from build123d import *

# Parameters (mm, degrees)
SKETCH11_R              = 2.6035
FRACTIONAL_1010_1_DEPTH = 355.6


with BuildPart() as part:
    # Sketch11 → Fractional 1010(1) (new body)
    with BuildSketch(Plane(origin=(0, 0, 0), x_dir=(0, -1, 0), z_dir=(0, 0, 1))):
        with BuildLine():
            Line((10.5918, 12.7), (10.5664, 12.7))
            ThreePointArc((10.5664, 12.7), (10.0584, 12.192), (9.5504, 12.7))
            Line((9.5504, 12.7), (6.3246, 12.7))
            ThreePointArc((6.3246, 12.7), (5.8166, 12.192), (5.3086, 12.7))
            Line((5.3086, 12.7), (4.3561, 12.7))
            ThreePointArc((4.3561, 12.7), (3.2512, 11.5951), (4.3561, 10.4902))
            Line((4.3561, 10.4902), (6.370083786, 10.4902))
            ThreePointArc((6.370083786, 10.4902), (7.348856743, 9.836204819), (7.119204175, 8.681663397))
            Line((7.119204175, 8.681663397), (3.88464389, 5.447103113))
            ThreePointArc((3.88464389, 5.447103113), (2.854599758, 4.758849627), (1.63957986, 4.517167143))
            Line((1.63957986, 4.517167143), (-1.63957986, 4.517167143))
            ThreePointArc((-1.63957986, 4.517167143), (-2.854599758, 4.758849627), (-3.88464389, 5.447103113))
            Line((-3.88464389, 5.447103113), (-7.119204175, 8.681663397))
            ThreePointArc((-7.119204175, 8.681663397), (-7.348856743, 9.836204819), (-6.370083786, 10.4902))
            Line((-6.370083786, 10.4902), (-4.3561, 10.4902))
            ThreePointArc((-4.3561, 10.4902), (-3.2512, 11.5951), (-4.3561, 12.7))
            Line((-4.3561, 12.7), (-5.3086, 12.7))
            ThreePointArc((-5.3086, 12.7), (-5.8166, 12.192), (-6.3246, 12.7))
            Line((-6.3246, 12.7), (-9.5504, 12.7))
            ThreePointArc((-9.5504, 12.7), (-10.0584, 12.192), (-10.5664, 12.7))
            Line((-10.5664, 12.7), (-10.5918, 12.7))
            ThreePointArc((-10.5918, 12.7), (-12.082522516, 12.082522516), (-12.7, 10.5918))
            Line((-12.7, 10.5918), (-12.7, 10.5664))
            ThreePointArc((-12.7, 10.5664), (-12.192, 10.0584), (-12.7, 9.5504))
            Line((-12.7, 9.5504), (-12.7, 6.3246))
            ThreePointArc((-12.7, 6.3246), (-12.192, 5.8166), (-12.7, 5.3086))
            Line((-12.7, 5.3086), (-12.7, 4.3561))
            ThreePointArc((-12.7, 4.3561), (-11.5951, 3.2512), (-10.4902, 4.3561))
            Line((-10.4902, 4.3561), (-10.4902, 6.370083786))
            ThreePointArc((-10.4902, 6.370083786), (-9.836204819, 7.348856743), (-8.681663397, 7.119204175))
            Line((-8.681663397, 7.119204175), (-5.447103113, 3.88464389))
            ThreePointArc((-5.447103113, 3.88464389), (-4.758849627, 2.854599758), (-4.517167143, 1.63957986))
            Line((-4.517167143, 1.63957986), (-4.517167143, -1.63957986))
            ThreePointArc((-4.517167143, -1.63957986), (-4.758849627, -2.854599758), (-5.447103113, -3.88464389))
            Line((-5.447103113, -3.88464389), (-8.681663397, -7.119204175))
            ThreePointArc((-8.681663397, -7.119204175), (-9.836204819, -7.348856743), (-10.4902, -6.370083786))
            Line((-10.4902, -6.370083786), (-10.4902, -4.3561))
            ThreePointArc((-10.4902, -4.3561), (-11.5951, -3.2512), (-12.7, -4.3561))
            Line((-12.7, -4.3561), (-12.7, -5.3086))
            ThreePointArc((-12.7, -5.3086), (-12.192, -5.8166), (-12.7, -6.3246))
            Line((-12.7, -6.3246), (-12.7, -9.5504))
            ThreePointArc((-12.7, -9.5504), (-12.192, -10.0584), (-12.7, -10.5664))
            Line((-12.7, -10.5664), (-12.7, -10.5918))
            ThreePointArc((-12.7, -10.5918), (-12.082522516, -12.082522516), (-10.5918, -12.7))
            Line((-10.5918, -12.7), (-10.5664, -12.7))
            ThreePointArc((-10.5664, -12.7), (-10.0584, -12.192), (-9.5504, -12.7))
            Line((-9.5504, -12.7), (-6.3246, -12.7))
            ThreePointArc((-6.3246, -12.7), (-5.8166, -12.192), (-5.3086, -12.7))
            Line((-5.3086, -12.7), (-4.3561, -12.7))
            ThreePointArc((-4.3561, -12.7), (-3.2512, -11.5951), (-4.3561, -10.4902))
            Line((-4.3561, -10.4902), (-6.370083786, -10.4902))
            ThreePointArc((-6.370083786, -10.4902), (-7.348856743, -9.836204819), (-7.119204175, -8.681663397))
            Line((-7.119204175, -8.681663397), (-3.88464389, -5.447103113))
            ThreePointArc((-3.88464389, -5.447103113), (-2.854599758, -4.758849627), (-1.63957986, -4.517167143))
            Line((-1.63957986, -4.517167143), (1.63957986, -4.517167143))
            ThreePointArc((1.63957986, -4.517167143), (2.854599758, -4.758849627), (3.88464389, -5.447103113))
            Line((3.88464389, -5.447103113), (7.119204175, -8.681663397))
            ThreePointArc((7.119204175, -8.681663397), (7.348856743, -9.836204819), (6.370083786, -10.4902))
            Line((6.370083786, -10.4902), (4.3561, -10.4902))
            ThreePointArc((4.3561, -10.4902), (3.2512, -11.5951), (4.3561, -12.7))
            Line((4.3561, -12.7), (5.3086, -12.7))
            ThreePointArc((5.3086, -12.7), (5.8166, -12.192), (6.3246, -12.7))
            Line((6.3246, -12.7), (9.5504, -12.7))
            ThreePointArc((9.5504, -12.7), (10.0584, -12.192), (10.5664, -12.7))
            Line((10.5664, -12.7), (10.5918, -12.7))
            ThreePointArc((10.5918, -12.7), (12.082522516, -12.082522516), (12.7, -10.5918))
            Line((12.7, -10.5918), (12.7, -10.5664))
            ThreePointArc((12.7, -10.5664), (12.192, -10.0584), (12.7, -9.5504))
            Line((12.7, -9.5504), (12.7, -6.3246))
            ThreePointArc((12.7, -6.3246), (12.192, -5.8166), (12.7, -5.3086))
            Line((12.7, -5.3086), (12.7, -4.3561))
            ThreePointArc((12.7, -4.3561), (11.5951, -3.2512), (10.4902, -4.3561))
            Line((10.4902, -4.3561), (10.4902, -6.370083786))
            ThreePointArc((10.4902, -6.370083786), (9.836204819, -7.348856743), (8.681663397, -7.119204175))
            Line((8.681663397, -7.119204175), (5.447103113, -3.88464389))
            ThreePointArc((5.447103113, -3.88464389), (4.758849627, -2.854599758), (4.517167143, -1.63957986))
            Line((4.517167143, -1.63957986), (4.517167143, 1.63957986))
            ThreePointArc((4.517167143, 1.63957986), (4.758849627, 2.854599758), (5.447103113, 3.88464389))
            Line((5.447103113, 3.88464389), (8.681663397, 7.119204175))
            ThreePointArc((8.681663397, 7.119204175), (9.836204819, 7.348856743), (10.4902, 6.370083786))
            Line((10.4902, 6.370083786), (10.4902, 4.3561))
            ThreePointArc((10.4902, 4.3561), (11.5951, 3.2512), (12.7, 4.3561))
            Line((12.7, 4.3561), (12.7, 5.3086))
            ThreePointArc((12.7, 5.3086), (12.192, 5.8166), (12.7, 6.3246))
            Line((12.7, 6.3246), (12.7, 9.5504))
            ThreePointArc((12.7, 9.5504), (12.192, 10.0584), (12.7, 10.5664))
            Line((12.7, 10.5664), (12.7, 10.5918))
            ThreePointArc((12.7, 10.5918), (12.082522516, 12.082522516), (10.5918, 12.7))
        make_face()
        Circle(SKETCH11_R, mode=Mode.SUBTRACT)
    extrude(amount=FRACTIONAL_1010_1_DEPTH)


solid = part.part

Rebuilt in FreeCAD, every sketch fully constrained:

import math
import FreeCAD as App
import Part
import Sketcher
Q = App.Units.Quantity

doc = App.newDocument("Part")
body = doc.addObject("PartDesign::Body", "Body")

sketch1 = body.newObject("Sketcher::SketchObject", "Sketch")
sketch1.AttachmentSupport = (doc.getObject("XY_Plane"), [""])
sketch1.MapMode = "FlatFace"
sketch1.addGeometry(Part.LineSegment(App.Vector(12.7, -10.592, 0), App.Vector(12.7, -10.566, 0)), False)
sketch1.addGeometry(Part.ArcOfCircle(Part.Circle(App.Vector(12.7, -10.058, 0), App.Vector(0, 0, 1), 0.508), math.radians(90), math.radians(270)), False)
sketch1.addGeometry(Part.LineSegment(App.Vector(12.7, -9.55, 0), App.Vector(12.7, -6.325, 0)), False)
sketch1.addGeometry(Part.ArcOfCircle(Part.Circle(App.Vector(12.7, -5.817, 0), App.Vector(0, 0, 1), 0.508), math.radians(90), math.radians(270)), False)
sketch1.addGeometry(Part.LineSegment(App.Vector(12.7, -5.309, 0), App.Vector(12.7, -4.356, 0)), False)
sketch1.addGeometry(Part.ArcOfCircle(Part.Circle(App.Vector(11.595, -4.356, 0), App.Vector(0, 0, 1), 1.105), math.radians(0), math.radians(180)), False)
sketch1.addGeometry(Part.LineSegment(App.Vector(10.49, -4.356, 0), App.Vector(10.49, -6.37, 0)), False)
sketch1.addGeometry(Part.ArcOfCircle(Part.Circle(App.Vector(9.431, -6.37, 0), App.Vector(0, 0, 1), 1.059), math.radians(-135), math.radians(0)), False)
sketch1.addGeometry(Part.LineSegment(App.Vector(8.682, -7.119, 0), App.Vector(5.447, -3.885, 0)), False)
sketch1.addGeometry(Part.ArcOfCircle(Part.Circle(App.Vector(7.692, -1.64, 0), App.Vector(0, 0, 1), 3.175), math.radians(180), math.radians(225)), False)
sketch1.addGeometry(Part.LineSegment(App.Vector(4.517, -1.64, 0), App.Vector(4.517, 1.64, 0)), False)
sketch1.addGeometry(Part.ArcOfCircle(Part.Circle(App.Vector(7.692, 1.64, 0), App.Vector(0, 0, 1), 3.175), math.radians(135), math.radians(180)), False)
sketch1.addGeometry(Part.LineSegment(App.Vector(5.447, 3.885, 0), App.Vector(8.682, 7.119, 0)), False)
sketch1.addGeometry(Part.ArcOfCircle(Part.Circle(App.Vector(9.431, 6.37, 0), App.Vector(0, 0, 1), 1.059), math.radians(0), math.radians(135)), False)
sketch1.addGeometry(Part.LineSegment(App.Vector(10.49, 6.37, 0), App.Vector(10.49, 4.356, 0)), False)
sketch1.addGeometry(Part.ArcOfCircle(Part.Circle(App.Vector(11.595, 4.356, 0), App.Vector(0, 0, 1), 1.105), math.radians(180), math.radians(360)), False)
sketch1.addGeometry(Part.LineSegment(App.Vector(12.7, 4.356, 0), App.Vector(12.7, 5.309, 0)), False)
sketch1.addGeometry(Part.ArcOfCircle(Part.Circle(App.Vector(12.7, 5.817, 0), App.Vector(0, 0, 1), 0.508), math.radians(90), math.radians(270)), False)
sketch1.addGeometry(Part.LineSegment(App.Vector(12.7, 6.325, 0), App.Vector(12.7, 9.55, 0)), False)
sketch1.addGeometry(Part.ArcOfCircle(Part.Circle(App.Vector(12.7, 10.058, 0), App.Vector(0, 0, 1), 0.508), math.radians(90), math.radians(270)), False)
sketch1.addGeometry(Part.LineSegment(App.Vector(12.7, 10.566, 0), App.Vector(12.7, 10.592, 0)), False)
sketch1.addGeometry(Part.ArcOfCircle(Part.Circle(App.Vector(10.592, 10.592, 0), App.Vector(0, 0, 1), 2.108), math.radians(0), math.radians(90)), False)
sketch1.addGeometry(Part.LineSegment(App.Vector(10.592, 12.7, 0), App.Vector(10.566, 12.7, 0)), False)
sketch1.addGeometry(Part.ArcOfCircle(Part.Circle(App.Vector(10.058, 12.7, 0), App.Vector(0, 0, 1), 0.508), math.radians(180), math.radians(360)), False)
sketch1.addGeometry(Part.LineSegment(App.Vector(9.55, 12.7, 0), App.Vector(6.325, 12.7, 0)), False)
sketch1.addGeometry(Part.ArcOfCircle(Part.Circle(App.Vector(5.817, 12.7, 0), App.Vector(0, 0, 1), 0.508), math.radians(180), math.radians(360)), False)
sketch1.addGeometry(Part.LineSegment(App.Vector(5.309, 12.7, 0), App.Vector(4.356, 12.7, 0)), False)
sketch1.addGeometry(Part.ArcOfCircle(Part.Circle(App.Vector(4.356, 11.595, 0), App.Vector(0, 0, 1), 1.105), math.radians(90), math.radians(270)), False)
sketch1.addGeometry(Part.LineSegment(App.Vector(4.356, 10.49, 0), App.Vector(6.37, 10.49, 0)), False)
sketch1.addGeometry(Part.ArcOfCircle(Part.Circle(App.Vector(6.37, 9.431, 0), App.Vector(0, 0, 1), 1.059), math.radians(-45), math.radians(90)), False)
sketch1.addGeometry(Part.LineSegment(App.Vector(7.119, 8.682, 0), App.Vector(3.885, 5.447, 0)), False)
sketch1.addGeometry(Part.ArcOfCircle(Part.Circle(App.Vector(1.64, 7.692, 0), App.Vector(0, 0, 1), 3.175), math.radians(-90), math.radians(-45)), False)
sketch1.addGeometry(Part.LineSegment(App.Vector(1.64, 4.517, 0), App.Vector(-1.64, 4.517, 0)), False)
sketch1.addGeometry(Part.ArcOfCircle(Part.Circle(App.Vector(-1.64, 7.692, 0), App.Vector(0, 0, 1), 3.175), math.radians(-135), math.radians(-90)), False)
sketch1.addGeometry(Part.LineSegment(App.Vector(-3.885, 5.447, 0), App.Vector(-7.119, 8.682, 0)), False)
sketch1.addGeometry(Part.ArcOfCircle(Part.Circle(App.Vector(-6.37, 9.431, 0), App.Vector(0, 0, 1), 1.059), math.radians(90), math.radians(225)), False)
sketch1.addGeometry(Part.LineSegment(App.Vector(-6.37, 10.49, 0), App.Vector(-4.356, 10.49, 0)), False)
sketch1.addGeometry(Part.ArcOfCircle(Part.Circle(App.Vector(-4.356, 11.595, 0), App.Vector(0, 0, 1), 1.105), math.radians(-90), math.radians(90)), False)
sketch1.addGeometry(Part.LineSegment(App.Vector(-4.356, 12.7, 0), App.Vector(-5.309, 12.7, 0)), False)
sketch1.addGeometry(Part.ArcOfCircle(Part.Circle(App.Vector(-5.817, 12.7, 0), App.Vector(0, 0, 1), 0.508), math.radians(180), math.radians(360)), False)
sketch1.addGeometry(Part.LineSegment(App.Vector(-6.325, 12.7, 0), App.Vector(-9.55, 12.7, 0)), False)
sketch1.addGeometry(Part.ArcOfCircle(Part.Circle(App.Vector(-10.058, 12.7, 0), App.Vector(0, 0, 1), 0.508), math.radians(180), math.radians(360)), False)
sketch1.addGeometry(Part.LineSegment(App.Vector(-10.566, 12.7, 0), App.Vector(-10.592, 12.7, 0)), False)
sketch1.addGeometry(Part.ArcOfCircle(Part.Circle(App.Vector(-10.592, 10.592, 0), App.Vector(0, 0, 1), 2.108), math.radians(90), math.radians(180)), False)
sketch1.addGeometry(Part.LineSegment(App.Vector(-12.7, 10.592, 0), App.Vector(-12.7, 10.566, 0)), False)
sketch1.addGeometry(Part.ArcOfCircle(Part.Circle(App.Vector(-12.7, 10.058, 0), App.Vector(0, 0, 1), 0.508), math.radians(-90), math.radians(90)), False)
sketch1.addGeometry(Part.LineSegment(App.Vector(-12.7, 9.55, 0), App.Vector(-12.7, 6.325, 0)), False)
sketch1.addGeometry(Part.ArcOfCircle(Part.Circle(App.Vector(-12.7, 5.817, 0), App.Vector(0, 0, 1), 0.508), math.radians(-90), math.radians(90)), False)
sketch1.addGeometry(Part.LineSegment(App.Vector(-12.7, 5.309, 0), App.Vector(-12.7, 4.356, 0)), False)
sketch1.addGeometry(Part.ArcOfCircle(Part.Circle(App.Vector(-11.595, 4.356, 0), App.Vector(0, 0, 1), 1.105), math.radians(180), math.radians(360)), False)
sketch1.addGeometry(Part.LineSegment(App.Vector(-10.49, 4.356, 0), App.Vector(-10.49, 6.37, 0)), False)
sketch1.addGeometry(Part.ArcOfCircle(Part.Circle(App.Vector(-9.431, 6.37, 0), App.Vector(0, 0, 1), 1.059), math.radians(45), math.radians(180)), False)
sketch1.addGeometry(Part.LineSegment(App.Vector(-8.682, 7.119, 0), App.Vector(-5.447, 3.885, 0)), False)
sketch1.addGeometry(Part.ArcOfCircle(Part.Circle(App.Vector(-7.692, 1.64, 0), App.Vector(0, 0, 1), 3.175), math.radians(0), math.radians(45)), False)
sketch1.addGeometry(Part.LineSegment(App.Vector(-4.517, 1.64, 0), App.Vector(-4.517, -1.64, 0)), False)
sketch1.addGeometry(Part.ArcOfCircle(Part.Circle(App.Vector(-7.692, -1.64, 0), App.Vector(0, 0, 1), 3.175), math.radians(-45), math.radians(0)), False)
sketch1.addGeometry(Part.LineSegment(App.Vector(-5.447, -3.885, 0), App.Vector(-8.682, -7.119, 0)), False)
sketch1.addGeometry(Part.ArcOfCircle(Part.Circle(App.Vector(-9.431, -6.37, 0), App.Vector(0, 0, 1), 1.059), math.radians(180), math.radians(315)), False)
sketch1.addGeometry(Part.LineSegment(App.Vector(-10.49, -6.37, 0), App.Vector(-10.49, -4.356, 0)), False)
sketch1.addGeometry(Part.ArcOfCircle(Part.Circle(App.Vector(-11.595, -4.356, 0), App.Vector(0, 0, 1), 1.105), math.radians(0), math.radians(180)), False)
sketch1.addGeometry(Part.LineSegment(App.Vector(-12.7, -4.356, 0), App.Vector(-12.7, -5.309, 0)), False)
sketch1.addGeometry(Part.ArcOfCircle(Part.Circle(App.Vector(-12.7, -5.817, 0), App.Vector(0, 0, 1), 0.508), math.radians(-90), math.radians(90)), False)
sketch1.addGeometry(Part.LineSegment(App.Vector(-12.7, -6.325, 0), App.Vector(-12.7, -9.55, 0)), False)
sketch1.addGeometry(Part.ArcOfCircle(Part.Circle(App.Vector(-12.7, -10.058, 0), App.Vector(0, 0, 1), 0.508), math.radians(-90), math.radians(90)), False)
sketch1.addGeometry(Part.LineSegment(App.Vector(-12.7, -10.566, 0), App.Vector(-12.7, -10.592, 0)), False)
sketch1.addGeometry(Part.ArcOfCircle(Part.Circle(App.Vector(-10.592, -10.592, 0), App.Vector(0, 0, 1), 2.108), math.radians(180), math.radians(270)), False)
sketch1.addGeometry(Part.LineSegment(App.Vector(-10.592, -12.7, 0), App.Vector(-10.566, -12.7, 0)), False)
sketch1.addGeometry(Part.ArcOfCircle(Part.Circle(App.Vector(-10.058, -12.7, 0), App.Vector(0, 0, 1), 0.508), math.radians(0), math.radians(180)), False)
sketch1.addGeometry(Part.LineSegment(App.Vector(-9.55, -12.7, 0), App.Vector(-6.325, -12.7, 0)), False)
sketch1.addGeometry(Part.ArcOfCircle(Part.Circle(App.Vector(-5.817, -12.7, 0), App.Vector(0, 0, 1), 0.508), math.radians(0), math.radians(180)), False)
sketch1.addGeometry(Part.LineSegment(App.Vector(-5.309, -12.7, 0), App.Vector(-4.356, -12.7, 0)), False)
sketch1.addGeometry(Part.ArcOfCircle(Part.Circle(App.Vector(-4.356, -11.595, 0), App.Vector(0, 0, 1), 1.105), math.radians(-90), math.radians(90)), False)
sketch1.addGeometry(Part.LineSegment(App.Vector(-4.356, -10.49, 0), App.Vector(-6.37, -10.49, 0)), False)
sketch1.addGeometry(Part.ArcOfCircle(Part.Circle(App.Vector(-6.37, -9.431, 0), App.Vector(0, 0, 1), 1.059), math.radians(135), math.radians(270)), False)
sketch1.addGeometry(Part.LineSegment(App.Vector(-7.119, -8.682, 0), App.Vector(-3.885, -5.447, 0)), False)
sketch1.addGeometry(Part.ArcOfCircle(Part.Circle(App.Vector(-1.64, -7.692, 0), App.Vector(0, 0, 1), 3.175), math.radians(90), math.radians(135)), False)
sketch1.addGeometry(Part.LineSegment(App.Vector(-1.64, -4.517, 0), App.Vector(1.64, -4.517, 0)), False)
sketch1.addGeometry(Part.ArcOfCircle(Part.Circle(App.Vector(1.64, -7.692, 0), App.Vector(0, 0, 1), 3.175), math.radians(45), math.radians(90)), False)
sketch1.addGeometry(Part.LineSegment(App.Vector(3.885, -5.447, 0), App.Vector(7.119, -8.682, 0)), False)
sketch1.addGeometry(Part.ArcOfCircle(Part.Circle(App.Vector(6.37, -9.431, 0), App.Vector(0, 0, 1), 1.059), math.radians(-90), math.radians(45)), False)
sketch1.addGeometry(Part.LineSegment(App.Vector(6.37, -10.49, 0), App.Vector(4.356, -10.49, 0)), False)
sketch1.addGeometry(Part.ArcOfCircle(Part.Circle(App.Vector(4.356, -11.595, 0), App.Vector(0, 0, 1), 1.105), math.radians(90), math.radians(270)), False)
sketch1.addGeometry(Part.LineSegment(App.Vector(4.356, -12.7, 0), App.Vector(5.309, -12.7, 0)), False)
sketch1.addGeometry(Part.ArcOfCircle(Part.Circle(App.Vector(5.817, -12.7, 0), App.Vector(0, 0, 1), 0.508), math.radians(0), math.radians(180)), False)
sketch1.addGeometry(Part.LineSegment(App.Vector(6.325, -12.7, 0), App.Vector(9.55, -12.7, 0)), False)
sketch1.addGeometry(Part.ArcOfCircle(Part.Circle(App.Vector(10.058, -12.7, 0), App.Vector(0, 0, 1), 0.508), math.radians(0), math.radians(180)), False)
sketch1.addGeometry(Part.LineSegment(App.Vector(10.566, -12.7, 0), App.Vector(10.592, -12.7, 0)), False)
sketch1.addGeometry(Part.ArcOfCircle(Part.Circle(App.Vector(10.592, -10.592, 0), App.Vector(0, 0, 1), 2.108), math.radians(-90), math.radians(0)), False)
sketch1.addGeometry(Part.Circle(App.Vector(0, 0, 0), App.Vector(0, 0, 1), 2.603), False)
sketch1.addConstraint(Sketcher.Constraint("Coincident", 0, 2, 1, 2))
sketch1.addConstraint(Sketcher.Constraint("Coincident", 1, 1, 2, 1))
sketch1.addConstraint(Sketcher.Constraint("Coincident", 2, 2, 3, 2))
sketch1.addConstraint(Sketcher.Constraint("Coincident", 3, 1, 4, 1))
sketch1.addConstraint(Sketcher.Constraint("Tangent", 4, 2, 5, 1))
sketch1.addConstraint(Sketcher.Constraint("Tangent", 5, 2, 6, 1))
sketch1.addConstraint(Sketcher.Constraint("Tangent", 6, 2, 7, 2))
sketch1.addConstraint(Sketcher.Constraint("Tangent", 7, 1, 8, 1))
sketch1.addConstraint(Sketcher.Constraint("Tangent", 8, 2, 9, 2))
sketch1.addConstraint(Sketcher.Constraint("Tangent", 9, 1, 10, 1))
sketch1.addConstraint(Sketcher.Constraint("Tangent", 10, 2, 11, 2))
sketch1.addConstraint(Sketcher.Constraint("Tangent", 11, 1, 12, 1))
sketch1.addConstraint(Sketcher.Constraint("Tangent", 12, 2, 13, 2))
sketch1.addConstraint(Sketcher.Constraint("Tangent", 13, 1, 14, 1))
sketch1.addConstraint(Sketcher.Constraint("Tangent", 14, 2, 15, 1))
sketch1.addConstraint(Sketcher.Constraint("Tangent", 15, 2, 16, 1))
sketch1.addConstraint(Sketcher.Constraint("Coincident", 16, 2, 17, 2))
sketch1.addConstraint(Sketcher.Constraint("Coincident", 17, 1, 18, 1))
sketch1.addConstraint(Sketcher.Constraint("Coincident", 18, 2, 19, 2))
sketch1.addConstraint(Sketcher.Constraint("Coincident", 19, 1, 20, 1))
sketch1.addConstraint(Sketcher.Constraint("Tangent", 20, 2, 21, 1))
sketch1.addConstraint(Sketcher.Constraint("Tangent", 21, 2, 22, 1))
sketch1.addConstraint(Sketcher.Constraint("Coincident", 22, 2, 23, 2))
sketch1.addConstraint(Sketcher.Constraint("Coincident", 23, 1, 24, 1))
sketch1.addConstraint(Sketcher.Constraint("Coincident", 24, 2, 25, 2))
sketch1.addConstraint(Sketcher.Constraint("Coincident", 25, 1, 26, 1))
sketch1.addConstraint(Sketcher.Constraint("Tangent", 26, 2, 27, 1))
sketch1.addConstraint(Sketcher.Constraint("Tangent", 27, 2, 28, 1))
sketch1.addConstraint(Sketcher.Constraint("Tangent", 28, 2, 29, 2))
sketch1.addConstraint(Sketcher.Constraint("Tangent", 29, 1, 30, 1))
sketch1.addConstraint(Sketcher.Constraint("Tangent", 30, 2, 31, 2))
sketch1.addConstraint(Sketcher.Constraint("Tangent", 31, 1, 32, 1))
sketch1.addConstraint(Sketcher.Constraint("Tangent", 32, 2, 33, 2))
sketch1.addConstraint(Sketcher.Constraint("Tangent", 33, 1, 34, 1))
sketch1.addConstraint(Sketcher.Constraint("Tangent", 34, 2, 35, 2))
sketch1.addConstraint(Sketcher.Constraint("Tangent", 35, 1, 36, 1))
sketch1.addConstraint(Sketcher.Constraint("Tangent", 36, 2, 37, 1))
sketch1.addConstraint(Sketcher.Constraint("Tangent", 37, 2, 38, 1))
sketch1.addConstraint(Sketcher.Constraint("Coincident", 38, 2, 39, 2))
sketch1.addConstraint(Sketcher.Constraint("Coincident", 39, 1, 40, 1))
sketch1.addConstraint(Sketcher.Constraint("Coincident", 40, 2, 41, 2))
sketch1.addConstraint(Sketcher.Constraint("Coincident", 41, 1, 42, 1))
sketch1.addConstraint(Sketcher.Constraint("Tangent", 42, 2, 43, 1))
sketch1.addConstraint(Sketcher.Constraint("Tangent", 43, 2, 44, 1))
sketch1.addConstraint(Sketcher.Constraint("Coincident", 44, 2, 45, 2))
sketch1.addConstraint(Sketcher.Constraint("Coincident", 45, 1, 46, 1))
sketch1.addConstraint(Sketcher.Constraint("Coincident", 46, 2, 47, 2))
sketch1.addConstraint(Sketcher.Constraint("Coincident", 47, 1, 48, 1))
sketch1.addConstraint(Sketcher.Constraint("Tangent", 48, 2, 49, 1))
sketch1.addConstraint(Sketcher.Constraint("Tangent", 49, 2, 50, 1))
sketch1.addConstraint(Sketcher.Constraint("Tangent", 50, 2, 51, 2))
sketch1.addConstraint(Sketcher.Constraint("Tangent", 51, 1, 52, 1))
sketch1.addConstraint(Sketcher.Constraint("Tangent", 52, 2, 53, 2))
sketch1.addConstraint(Sketcher.Constraint("Tangent", 53, 1, 54, 1))
sketch1.addConstraint(Sketcher.Constraint("Tangent", 54, 2, 55, 2))
sketch1.addConstraint(Sketcher.Constraint("Tangent", 55, 1, 56, 1))
sketch1.addConstraint(Sketcher.Constraint("Tangent", 56, 2, 57, 2))
sketch1.addConstraint(Sketcher.Constraint("Tangent", 57, 1, 58, 1))
sketch1.addConstraint(Sketcher.Constraint("Tangent", 58, 2, 59, 1))
sketch1.addConstraint(Sketcher.Constraint("Tangent", 59, 2, 60, 1))
sketch1.addConstraint(Sketcher.Constraint("Coincident", 60, 2, 61, 2))
sketch1.addConstraint(Sketcher.Constraint("Coincident", 61, 1, 62, 1))
sketch1.addConstraint(Sketcher.Constraint("Coincident", 62, 2, 63, 2))
sketch1.addConstraint(Sketcher.Constraint("Coincident", 63, 1, 64, 1))
sketch1.addConstraint(Sketcher.Constraint("Tangent", 64, 2, 65, 1))
sketch1.addConstraint(Sketcher.Constraint("Tangent", 65, 2, 66, 1))
sketch1.addConstraint(Sketcher.Constraint("Coincident", 66, 2, 67, 2))
sketch1.addConstraint(Sketcher.Constraint("Coincident", 67, 1, 68, 1))
sketch1.addConstraint(Sketcher.Constraint("Coincident", 68, 2, 69, 2))
sketch1.addConstraint(Sketcher.Constraint("Coincident", 69, 1, 70, 1))
sketch1.addConstraint(Sketcher.Constraint("Tangent", 70, 2, 71, 1))
sketch1.addConstraint(Sketcher.Constraint("Tangent", 71, 2, 72, 1))
sketch1.addConstraint(Sketcher.Constraint("Tangent", 72, 2, 73, 2))
sketch1.addConstraint(Sketcher.Constraint("Tangent", 73, 1, 74, 1))
sketch1.addConstraint(Sketcher.Constraint("Tangent", 74, 2, 75, 2))
sketch1.addConstraint(Sketcher.Constraint("Tangent", 75, 1, 76, 1))
sketch1.addConstraint(Sketcher.Constraint("Tangent", 76, 2, 77, 2))
sketch1.addConstraint(Sketcher.Constraint("Tangent", 77, 1, 78, 1))
sketch1.addConstraint(Sketcher.Constraint("Tangent", 78, 2, 79, 2))
sketch1.addConstraint(Sketcher.Constraint("Tangent", 79, 1, 80, 1))
sketch1.addConstraint(Sketcher.Constraint("Tangent", 80, 2, 81, 1))
sketch1.addConstraint(Sketcher.Constraint("Tangent", 81, 2, 82, 1))
sketch1.addConstraint(Sketcher.Constraint("Coincident", 82, 2, 83, 2))
sketch1.addConstraint(Sketcher.Constraint("Coincident", 83, 1, 84, 1))
sketch1.addConstraint(Sketcher.Constraint("Coincident", 84, 2, 85, 2))
sketch1.addConstraint(Sketcher.Constraint("Coincident", 85, 1, 86, 1))
sketch1.addConstraint(Sketcher.Constraint("Tangent", 86, 2, 87, 1))
sketch1.addConstraint(Sketcher.Constraint("Tangent", 87, 2, 0, 1))
sketch1.addConstraint(Sketcher.Constraint("Vertical", 0))
sketch1.addConstraint(Sketcher.Constraint("Vertical", 2))
sketch1.addConstraint(Sketcher.Constraint("Vertical", 4))
sketch1.addConstraint(Sketcher.Constraint("Vertical", 6))
sketch1.addConstraint(Sketcher.Constraint("Vertical", 10))
sketch1.addConstraint(Sketcher.Constraint("Vertical", 14))
sketch1.addConstraint(Sketcher.Constraint("Vertical", 16))
sketch1.addConstraint(Sketcher.Constraint("Vertical", 18))
sketch1.addConstraint(Sketcher.Constraint("Vertical", 20))
sketch1.addConstraint(Sketcher.Constraint("Horizontal", 22))
sketch1.addConstraint(Sketcher.Constraint("Horizontal", 24))
sketch1.addConstraint(Sketcher.Constraint("Horizontal", 26))
sketch1.addConstraint(Sketcher.Constraint("Horizontal", 28))
sketch1.addConstraint(Sketcher.Constraint("Horizontal", 32))
sketch1.addConstraint(Sketcher.Constraint("Horizontal", 36))
sketch1.addConstraint(Sketcher.Constraint("Horizontal", 38))
sketch1.addConstraint(Sketcher.Constraint("Horizontal", 40))
sketch1.addConstraint(Sketcher.Constraint("Horizontal", 42))
sketch1.addConstraint(Sketcher.Constraint("Vertical", 44))
sketch1.addConstraint(Sketcher.Constraint("Vertical", 46))
sketch1.addConstraint(Sketcher.Constraint("Vertical", 48))
sketch1.addConstraint(Sketcher.Constraint("Vertical", 50))
sketch1.addConstraint(Sketcher.Constraint("Vertical", 54))
sketch1.addConstraint(Sketcher.Constraint("Vertical", 58))
sketch1.addConstraint(Sketcher.Constraint("Vertical", 60))
sketch1.addConstraint(Sketcher.Constraint("Vertical", 62))
sketch1.addConstraint(Sketcher.Constraint("Vertical", 64))
sketch1.addConstraint(Sketcher.Constraint("Horizontal", 66))
sketch1.addConstraint(Sketcher.Constraint("Horizontal", 68))
sketch1.addConstraint(Sketcher.Constraint("Horizontal", 70))
sketch1.addConstraint(Sketcher.Constraint("Horizontal", 72))
sketch1.addConstraint(Sketcher.Constraint("Horizontal", 76))
sketch1.addConstraint(Sketcher.Constraint("Horizontal", 80))
sketch1.addConstraint(Sketcher.Constraint("Horizontal", 82))
sketch1.addConstraint(Sketcher.Constraint("Horizontal", 84))
sketch1.addConstraint(Sketcher.Constraint("Horizontal", 86))
sketch1.addConstraint(Sketcher.Constraint("Coincident", 88, 3, -1, 1))
sketch1.addConstraint(Sketcher.Constraint("Equal", 1, 3))
sketch1.addConstraint(Sketcher.Constraint("Equal", 9, 11))
sketch1.addConstraint(Sketcher.Constraint("Equal", 7, 13))
sketch1.addConstraint(Sketcher.Constraint("Equal", 5, 15))
sketch1.addConstraint(Sketcher.Constraint("Equal", 3, 17))
sketch1.addConstraint(Sketcher.Constraint("Equal", 17, 19))
sketch1.addConstraint(Sketcher.Constraint("Equal", 19, 23))
sketch1.addConstraint(Sketcher.Constraint("Equal", 23, 25))
sketch1.addConstraint(Sketcher.Constraint("Equal", 15, 27))
sketch1.addConstraint(Sketcher.Constraint("Equal", 13, 29))
sketch1.addConstraint(Sketcher.Constraint("Equal", 11, 31))
sketch1.addConstraint(Sketcher.Constraint("Equal", 31, 33))
sketch1.addConstraint(Sketcher.Constraint("Equal", 29, 35))
sketch1.addConstraint(Sketcher.Constraint("Equal", 27, 37))
sketch1.addConstraint(Sketcher.Constraint("Equal", 25, 39))
sketch1.addConstraint(Sketcher.Constraint("Equal", 39, 41))
sketch1.addConstraint(Sketcher.Constraint("Equal", 21, 43))
sketch1.addConstraint(Sketcher.Constraint("Equal", 41, 45))
sketch1.addConstraint(Sketcher.Constraint("Equal", 45, 47))
sketch1.addConstraint(Sketcher.Constraint("Equal", 37, 49))
sketch1.addConstraint(Sketcher.Constraint("Equal", 35, 51))
sketch1.addConstraint(Sketcher.Constraint("Equal", 33, 53))
sketch1.addConstraint(Sketcher.Constraint("Equal", 53, 55))
sketch1.addConstraint(Sketcher.Constraint("Equal", 51, 57))
sketch1.addConstraint(Sketcher.Constraint("Equal", 49, 59))
sketch1.addConstraint(Sketcher.Constraint("Equal", 47, 61))
sketch1.addConstraint(Sketcher.Constraint("Equal", 61, 63))
sketch1.addConstraint(Sketcher.Constraint("Equal", 43, 65))
sketch1.addConstraint(Sketcher.Constraint("Equal", 63, 67))
sketch1.addConstraint(Sketcher.Constraint("Equal", 67, 69))
sketch1.addConstraint(Sketcher.Constraint("Equal", 59, 71))
sketch1.addConstraint(Sketcher.Constraint("Equal", 57, 73))
sketch1.addConstraint(Sketcher.Constraint("Equal", 55, 75))
sketch1.addConstraint(Sketcher.Constraint("Equal", 75, 77))
sketch1.addConstraint(Sketcher.Constraint("Equal", 73, 79))
sketch1.addConstraint(Sketcher.Constraint("Equal", 71, 81))
sketch1.addConstraint(Sketcher.Constraint("Equal", 69, 83))
sketch1.addConstraint(Sketcher.Constraint("Equal", 83, 85))
sketch1.addConstraint(Sketcher.Constraint("Equal", 65, 87))
sketch1.addConstraint(Sketcher.Constraint("Symmetric", 1, 3, 45, 3, -1, 1))
sketch1.addConstraint(Sketcher.Constraint("Symmetric", 3, 3, 47, 3, -1, 1))
sketch1.addConstraint(Sketcher.Constraint("Symmetric", 5, 3, 49, 3, -1, 1))
sketch1.addConstraint(Sketcher.Constraint("Symmetric", 9, 3, 53, 3, -1, 1))
sketch1.addConstraint(Sketcher.Constraint("Symmetric", 13, 3, 57, 3, -1, 1))
sketch1.addConstraint(Sketcher.Constraint("Symmetric", 17, 3, 61, 3, -1, 1))
sketch1.addConstraint(Sketcher.Constraint("Symmetric", 19, 3, 63, 3, -1, 1))
sketch1.addConstraint(Sketcher.Constraint("Symmetric", 21, 3, 65, 3, -1, 1))
sketch1.addConstraint(Sketcher.Constraint("Symmetric", 23, 3, 67, 3, -1, 1))
sketch1.addConstraint(Sketcher.Constraint("Symmetric", 25, 3, 69, 3, -1, 1))
sketch1.addConstraint(Sketcher.Constraint("Symmetric", 27, 3, 71, 3, -1, 1))
sketch1.addConstraint(Sketcher.Constraint("Symmetric", 31, 3, 75, 3, -1, 1))
sketch1.addConstraint(Sketcher.Constraint("Symmetric", 35, 3, 79, 3, -1, 1))
sketch1.addConstraint(Sketcher.Constraint("Symmetric", 39, 3, 83, 3, -1, 1))
sketch1.addConstraint(Sketcher.Constraint("Symmetric", 41, 3, 85, 3, -1, 1))
sketch1.addConstraint(Sketcher.Constraint("Symmetric", 43, 3, 87, 3, -1, 1))
sketch1.addConstraint(Sketcher.Constraint("Symmetric", 29, 3, 35, 3, -2))
sketch1.addConstraint(Sketcher.Constraint("Symmetric", 25, 3, 39, 3, -2))
sketch1.addConstraint(Sketcher.Constraint("Symmetric", 23, 3, 41, 3, -2))
sketch1.addConstraint(Sketcher.Constraint("Symmetric", 21, 3, 43, 3, -2))
sketch1.addConstraint(Sketcher.Constraint("Symmetric", 19, 3, 45, 3, -2))
sketch1.addConstraint(Sketcher.Constraint("Symmetric", 17, 3, 47, 3, -2))
sketch1.addConstraint(Sketcher.Constraint("Symmetric", 15, 3, 49, 3, -2))
sketch1.addConstraint(Sketcher.Constraint("Symmetric", 12, 2, 51, 1, -2))
sketch1.addConstraint(Sketcher.Constraint("Symmetric", 8, 2, 55, 1, -2))
sketch1.addConstraint(Sketcher.Constraint("Symmetric", 74, 2, 77, 1, -2))
sketch1.addConstraint(Sketcher.Constraint("Perpendicular", 8, 12))
sketch1.addConstraint(Sketcher.Constraint("Parallel", 12, 30))
sketch1.addConstraint(Sketcher.Constraint("Perpendicular", 30, 34))
sketch1.addConstraint(Sketcher.Constraint("Horizontal", 23, 3, 25, 3))
sketch1.addConstraint(Sketcher.Constraint("Horizontal", 5, 3, 59, 3))
sketch1.addConstraint(Sketcher.Constraint("Horizontal", 41, 3, 21, 2))
sketch1.addConstraint(Sketcher.Constraint("Horizontal", 22, 2, 23, 1))
sketch1.addConstraint(Sketcher.Constraint("Horizontal", 24, 2, 25, 1))
sketch1.addConstraint(Sketcher.Constraint("Horizontal", 38, 2, 39, 1))
sketch1.addConstraint(Sketcher.Constraint("Horizontal", 66, 2, 67, 1))
sketch1.addConstraint(Sketcher.Constraint("Horizontal", 82, 2, 83, 1))
sketch1.addConstraint(Sketcher.Constraint("Vertical", 1, 3, 3, 3))
sketch1.addConstraint(Sketcher.Constraint("Vertical", 37, 3, 71, 3))
sketch1.addConstraint(Sketcher.Constraint("Vertical", 27, 3, 81, 3))
sketch1.addConstraint(Sketcher.Constraint("Vertical", 19, 3, 0, 2))
sketch1.addConstraint(Sketcher.Constraint("Vertical", 0, 2, 1, 1))
sketch1.addConstraint(Sketcher.Constraint("Vertical", 2, 2, 3, 1))
sketch1.addConstraint(Sketcher.Constraint("Vertical", 16, 2, 17, 1))
sketch1.addConstraint(Sketcher.Constraint("Vertical", 44, 2, 45, 1))
sketch1.addConstraint(Sketcher.Constraint("Vertical", 60, 2, 61, 1))
sketch1.addConstraint(Sketcher.Constraint("Equal", 86, 0))
sketch1.addConstraint(Sketcher.Constraint("Equal", 84, 2))
sketch1.addConstraint(Sketcher.Constraint("Equal", 82, 4))
sketch1.addConstraint(Sketcher.Constraint("Equal", 80, 6))
sketch1.addConstraint(Sketcher.Constraint("Equal", 76, 10))
sketch1.addConstraint(Sketcher.Constraint("Equal", 12, 30))
sketch1.addConstraint(Sketcher.Constraint("Radius", 1, Q("0.02 in")))
sketch1.addConstraint(Sketcher.Constraint("Diameter", 88, Q("0.205 in")))
sketch1.addConstraint(Sketcher.Constraint("Radius", 9, Q("0.125 in")))
sketch1.addConstraint(Sketcher.Constraint("Radius", 21, Q("0.083 in")))
sketch1.addConstraint(Sketcher.Constraint("DistanceX", -1, 1, 1, 3, Q("0.5 in")))
sketch1.addConstraint(Sketcher.Constraint("Radius", 5, Q("0.0435 in")))
sketch1.addConstraint(Sketcher.Constraint("DistanceX", 22, 2, 22, 1, Q("0.001 in")))
sketch1.addConstraint(Sketcher.Constraint("DistanceX", 24, 2, 24, 1, Q("0.127 in")))
sketch1.addConstraint(Sketcher.Constraint("DistanceX", 26, 2, 26, 1, Q("0.0375 in")))
sketch1.addConstraint(Sketcher.Constraint("Radius", 7, 1.059416))
sketch1.addConstraint(Sketcher.Constraint("DistanceX", 32, 2, 32, 1, 3.27916))
sketch1.addConstraint(Sketcher.Constraint("Distance", 8, 4.574359))
pad1 = body.newObject("PartDesign::Pad", "Pad")
pad1.Profile = sketch1
pad1.Length = Q("14 in")

doc.recompute()
